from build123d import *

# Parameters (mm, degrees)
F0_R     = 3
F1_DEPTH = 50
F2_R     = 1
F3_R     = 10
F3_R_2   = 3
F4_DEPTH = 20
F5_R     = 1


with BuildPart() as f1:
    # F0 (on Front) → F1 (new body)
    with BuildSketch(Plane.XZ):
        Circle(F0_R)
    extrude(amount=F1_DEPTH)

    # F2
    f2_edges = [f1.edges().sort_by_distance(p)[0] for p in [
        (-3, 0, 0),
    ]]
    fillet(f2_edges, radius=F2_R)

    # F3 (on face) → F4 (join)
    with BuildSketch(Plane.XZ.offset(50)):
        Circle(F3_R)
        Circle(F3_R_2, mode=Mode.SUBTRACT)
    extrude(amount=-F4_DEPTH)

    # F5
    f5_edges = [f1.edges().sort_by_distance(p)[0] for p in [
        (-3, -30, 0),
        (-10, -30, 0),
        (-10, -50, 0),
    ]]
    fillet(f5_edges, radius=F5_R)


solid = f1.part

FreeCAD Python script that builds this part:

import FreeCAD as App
import Part
import Sketcher
from FreeCAD import Vector
Q = App.Units.Quantity


def edges_at(feature, points):
    """Names of the edges that pass closest to the given points."""
    edges = feature.Shape.Edges
    near = lambda p: min(range(len(edges)), key=lambda i: edges[i].distToShape(Part.Vertex(*p))[0])
    return sorted({f"Edge{near(p) + 1}" for p in points})

doc = App.newDocument("Part")
params = doc.addObject("Spreadsheet::Sheet", "Params")
for row, (alias, value) in enumerate([
    ("sketch1_diameter", "6 mm"),
    ("pad1_length", "50 mm"),
    ("fillet_radius", "1 mm"),
    ("sketch2_diameter", "20 mm"),
    ("sketch2_diameter2", "6 mm"),
    ("pad2_length", "20 mm"),
    ("fillet2_radius", "1 mm"),
], start=1):
    params.set(f"A{row}", alias)
    params.set(f"B{row}", "=" + value)
    params.setAlias(f"B{row}", alias)

body = doc.addObject("PartDesign::Body", "Body")

# Sketch on XZ plane
sketch1 = body.newObject("Sketcher::SketchObject", "Sketch")
sketch1.AttachmentSupport = (doc.getObject("XZ_Plane"), [""])
sketch1.MapMode = "FlatFace"
sketch1.addGeometry(Part.Circle(Vector(0, 0, 0), Vector(0, 0, 1), 3), False)
sketch1.addConstraint(Sketcher.Constraint("Coincident", 0, 3, -1, 1))
sketch1.addConstraint(Sketcher.Constraint("Diameter", 0, Q("6 mm")))
sketch1.setExpression("Constraints[1]", "Params.sketch1_diameter")
pad1 = body.newObject("PartDesign::Pad", "Pad")
pad1.Profile = sketch1
pad1.setExpression("Length", "Params.pad1_length")
doc.recompute()

fillet = body.newObject("PartDesign::Fillet", "Fillet")
fillet.Base = (pad1, edges_at(pad1, [(-3, 0, 0)]))
fillet.setExpression("Radius", "Params.fillet_radius")

# Sketch on XZ plane
sketch2 = body.newObject("Sketcher::SketchObject", "Sketch001")
sketch2.AttachmentSupport = (doc.getObject("XZ_Plane"), [""])
sketch2.MapMode = "FlatFace"
sketch2.AttachmentOffset = App.Placement(Vector(0, 0, 50), App.Rotation())
sketch2.addGeometry(Part.Circle(Vector(0, 0, 0), Vector(0, 0, 1), 10), False)
sketch2.addGeometry(Part.Circle(Vector(0, 0, 0), Vector(0, 0, 1), 3), False)
sketch2.addConstraint(Sketcher.Constraint("Coincident", 0, 3, -1, 1))
sketch2.addConstraint(Sketcher.Constraint("Coincident", 1, 3, -1, 1))
sketch2.addConstraint(Sketcher.Constraint("Diameter", 0, Q("20 mm")))
sketch2.addConstraint(Sketcher.Constraint("Diameter", 1, Q("6 mm")))
sketch2.setExpression("Constraints[2]", "Params.sketch2_diameter")
sketch2.setExpression("Constraints[3]", "Params.sketch2_diameter2")
pad2 = body.newObject("PartDesign::Pad", "Pad001")
pad2.Profile = sketch2
pad2.setExpression("Length", "Params.pad2_length")
pad2.Reversed = True
doc.recompute()

fillet2 = body.newObject("PartDesign::Fillet", "Fillet001")
fillet2.Base = (pad2, edges_at(pad2, [(-3, -30, 0), (-10, -30, 0), (-10, -50, 0)]))
fillet2.setExpression("Radius", "Params.fillet2_radius")

doc.recompute()
